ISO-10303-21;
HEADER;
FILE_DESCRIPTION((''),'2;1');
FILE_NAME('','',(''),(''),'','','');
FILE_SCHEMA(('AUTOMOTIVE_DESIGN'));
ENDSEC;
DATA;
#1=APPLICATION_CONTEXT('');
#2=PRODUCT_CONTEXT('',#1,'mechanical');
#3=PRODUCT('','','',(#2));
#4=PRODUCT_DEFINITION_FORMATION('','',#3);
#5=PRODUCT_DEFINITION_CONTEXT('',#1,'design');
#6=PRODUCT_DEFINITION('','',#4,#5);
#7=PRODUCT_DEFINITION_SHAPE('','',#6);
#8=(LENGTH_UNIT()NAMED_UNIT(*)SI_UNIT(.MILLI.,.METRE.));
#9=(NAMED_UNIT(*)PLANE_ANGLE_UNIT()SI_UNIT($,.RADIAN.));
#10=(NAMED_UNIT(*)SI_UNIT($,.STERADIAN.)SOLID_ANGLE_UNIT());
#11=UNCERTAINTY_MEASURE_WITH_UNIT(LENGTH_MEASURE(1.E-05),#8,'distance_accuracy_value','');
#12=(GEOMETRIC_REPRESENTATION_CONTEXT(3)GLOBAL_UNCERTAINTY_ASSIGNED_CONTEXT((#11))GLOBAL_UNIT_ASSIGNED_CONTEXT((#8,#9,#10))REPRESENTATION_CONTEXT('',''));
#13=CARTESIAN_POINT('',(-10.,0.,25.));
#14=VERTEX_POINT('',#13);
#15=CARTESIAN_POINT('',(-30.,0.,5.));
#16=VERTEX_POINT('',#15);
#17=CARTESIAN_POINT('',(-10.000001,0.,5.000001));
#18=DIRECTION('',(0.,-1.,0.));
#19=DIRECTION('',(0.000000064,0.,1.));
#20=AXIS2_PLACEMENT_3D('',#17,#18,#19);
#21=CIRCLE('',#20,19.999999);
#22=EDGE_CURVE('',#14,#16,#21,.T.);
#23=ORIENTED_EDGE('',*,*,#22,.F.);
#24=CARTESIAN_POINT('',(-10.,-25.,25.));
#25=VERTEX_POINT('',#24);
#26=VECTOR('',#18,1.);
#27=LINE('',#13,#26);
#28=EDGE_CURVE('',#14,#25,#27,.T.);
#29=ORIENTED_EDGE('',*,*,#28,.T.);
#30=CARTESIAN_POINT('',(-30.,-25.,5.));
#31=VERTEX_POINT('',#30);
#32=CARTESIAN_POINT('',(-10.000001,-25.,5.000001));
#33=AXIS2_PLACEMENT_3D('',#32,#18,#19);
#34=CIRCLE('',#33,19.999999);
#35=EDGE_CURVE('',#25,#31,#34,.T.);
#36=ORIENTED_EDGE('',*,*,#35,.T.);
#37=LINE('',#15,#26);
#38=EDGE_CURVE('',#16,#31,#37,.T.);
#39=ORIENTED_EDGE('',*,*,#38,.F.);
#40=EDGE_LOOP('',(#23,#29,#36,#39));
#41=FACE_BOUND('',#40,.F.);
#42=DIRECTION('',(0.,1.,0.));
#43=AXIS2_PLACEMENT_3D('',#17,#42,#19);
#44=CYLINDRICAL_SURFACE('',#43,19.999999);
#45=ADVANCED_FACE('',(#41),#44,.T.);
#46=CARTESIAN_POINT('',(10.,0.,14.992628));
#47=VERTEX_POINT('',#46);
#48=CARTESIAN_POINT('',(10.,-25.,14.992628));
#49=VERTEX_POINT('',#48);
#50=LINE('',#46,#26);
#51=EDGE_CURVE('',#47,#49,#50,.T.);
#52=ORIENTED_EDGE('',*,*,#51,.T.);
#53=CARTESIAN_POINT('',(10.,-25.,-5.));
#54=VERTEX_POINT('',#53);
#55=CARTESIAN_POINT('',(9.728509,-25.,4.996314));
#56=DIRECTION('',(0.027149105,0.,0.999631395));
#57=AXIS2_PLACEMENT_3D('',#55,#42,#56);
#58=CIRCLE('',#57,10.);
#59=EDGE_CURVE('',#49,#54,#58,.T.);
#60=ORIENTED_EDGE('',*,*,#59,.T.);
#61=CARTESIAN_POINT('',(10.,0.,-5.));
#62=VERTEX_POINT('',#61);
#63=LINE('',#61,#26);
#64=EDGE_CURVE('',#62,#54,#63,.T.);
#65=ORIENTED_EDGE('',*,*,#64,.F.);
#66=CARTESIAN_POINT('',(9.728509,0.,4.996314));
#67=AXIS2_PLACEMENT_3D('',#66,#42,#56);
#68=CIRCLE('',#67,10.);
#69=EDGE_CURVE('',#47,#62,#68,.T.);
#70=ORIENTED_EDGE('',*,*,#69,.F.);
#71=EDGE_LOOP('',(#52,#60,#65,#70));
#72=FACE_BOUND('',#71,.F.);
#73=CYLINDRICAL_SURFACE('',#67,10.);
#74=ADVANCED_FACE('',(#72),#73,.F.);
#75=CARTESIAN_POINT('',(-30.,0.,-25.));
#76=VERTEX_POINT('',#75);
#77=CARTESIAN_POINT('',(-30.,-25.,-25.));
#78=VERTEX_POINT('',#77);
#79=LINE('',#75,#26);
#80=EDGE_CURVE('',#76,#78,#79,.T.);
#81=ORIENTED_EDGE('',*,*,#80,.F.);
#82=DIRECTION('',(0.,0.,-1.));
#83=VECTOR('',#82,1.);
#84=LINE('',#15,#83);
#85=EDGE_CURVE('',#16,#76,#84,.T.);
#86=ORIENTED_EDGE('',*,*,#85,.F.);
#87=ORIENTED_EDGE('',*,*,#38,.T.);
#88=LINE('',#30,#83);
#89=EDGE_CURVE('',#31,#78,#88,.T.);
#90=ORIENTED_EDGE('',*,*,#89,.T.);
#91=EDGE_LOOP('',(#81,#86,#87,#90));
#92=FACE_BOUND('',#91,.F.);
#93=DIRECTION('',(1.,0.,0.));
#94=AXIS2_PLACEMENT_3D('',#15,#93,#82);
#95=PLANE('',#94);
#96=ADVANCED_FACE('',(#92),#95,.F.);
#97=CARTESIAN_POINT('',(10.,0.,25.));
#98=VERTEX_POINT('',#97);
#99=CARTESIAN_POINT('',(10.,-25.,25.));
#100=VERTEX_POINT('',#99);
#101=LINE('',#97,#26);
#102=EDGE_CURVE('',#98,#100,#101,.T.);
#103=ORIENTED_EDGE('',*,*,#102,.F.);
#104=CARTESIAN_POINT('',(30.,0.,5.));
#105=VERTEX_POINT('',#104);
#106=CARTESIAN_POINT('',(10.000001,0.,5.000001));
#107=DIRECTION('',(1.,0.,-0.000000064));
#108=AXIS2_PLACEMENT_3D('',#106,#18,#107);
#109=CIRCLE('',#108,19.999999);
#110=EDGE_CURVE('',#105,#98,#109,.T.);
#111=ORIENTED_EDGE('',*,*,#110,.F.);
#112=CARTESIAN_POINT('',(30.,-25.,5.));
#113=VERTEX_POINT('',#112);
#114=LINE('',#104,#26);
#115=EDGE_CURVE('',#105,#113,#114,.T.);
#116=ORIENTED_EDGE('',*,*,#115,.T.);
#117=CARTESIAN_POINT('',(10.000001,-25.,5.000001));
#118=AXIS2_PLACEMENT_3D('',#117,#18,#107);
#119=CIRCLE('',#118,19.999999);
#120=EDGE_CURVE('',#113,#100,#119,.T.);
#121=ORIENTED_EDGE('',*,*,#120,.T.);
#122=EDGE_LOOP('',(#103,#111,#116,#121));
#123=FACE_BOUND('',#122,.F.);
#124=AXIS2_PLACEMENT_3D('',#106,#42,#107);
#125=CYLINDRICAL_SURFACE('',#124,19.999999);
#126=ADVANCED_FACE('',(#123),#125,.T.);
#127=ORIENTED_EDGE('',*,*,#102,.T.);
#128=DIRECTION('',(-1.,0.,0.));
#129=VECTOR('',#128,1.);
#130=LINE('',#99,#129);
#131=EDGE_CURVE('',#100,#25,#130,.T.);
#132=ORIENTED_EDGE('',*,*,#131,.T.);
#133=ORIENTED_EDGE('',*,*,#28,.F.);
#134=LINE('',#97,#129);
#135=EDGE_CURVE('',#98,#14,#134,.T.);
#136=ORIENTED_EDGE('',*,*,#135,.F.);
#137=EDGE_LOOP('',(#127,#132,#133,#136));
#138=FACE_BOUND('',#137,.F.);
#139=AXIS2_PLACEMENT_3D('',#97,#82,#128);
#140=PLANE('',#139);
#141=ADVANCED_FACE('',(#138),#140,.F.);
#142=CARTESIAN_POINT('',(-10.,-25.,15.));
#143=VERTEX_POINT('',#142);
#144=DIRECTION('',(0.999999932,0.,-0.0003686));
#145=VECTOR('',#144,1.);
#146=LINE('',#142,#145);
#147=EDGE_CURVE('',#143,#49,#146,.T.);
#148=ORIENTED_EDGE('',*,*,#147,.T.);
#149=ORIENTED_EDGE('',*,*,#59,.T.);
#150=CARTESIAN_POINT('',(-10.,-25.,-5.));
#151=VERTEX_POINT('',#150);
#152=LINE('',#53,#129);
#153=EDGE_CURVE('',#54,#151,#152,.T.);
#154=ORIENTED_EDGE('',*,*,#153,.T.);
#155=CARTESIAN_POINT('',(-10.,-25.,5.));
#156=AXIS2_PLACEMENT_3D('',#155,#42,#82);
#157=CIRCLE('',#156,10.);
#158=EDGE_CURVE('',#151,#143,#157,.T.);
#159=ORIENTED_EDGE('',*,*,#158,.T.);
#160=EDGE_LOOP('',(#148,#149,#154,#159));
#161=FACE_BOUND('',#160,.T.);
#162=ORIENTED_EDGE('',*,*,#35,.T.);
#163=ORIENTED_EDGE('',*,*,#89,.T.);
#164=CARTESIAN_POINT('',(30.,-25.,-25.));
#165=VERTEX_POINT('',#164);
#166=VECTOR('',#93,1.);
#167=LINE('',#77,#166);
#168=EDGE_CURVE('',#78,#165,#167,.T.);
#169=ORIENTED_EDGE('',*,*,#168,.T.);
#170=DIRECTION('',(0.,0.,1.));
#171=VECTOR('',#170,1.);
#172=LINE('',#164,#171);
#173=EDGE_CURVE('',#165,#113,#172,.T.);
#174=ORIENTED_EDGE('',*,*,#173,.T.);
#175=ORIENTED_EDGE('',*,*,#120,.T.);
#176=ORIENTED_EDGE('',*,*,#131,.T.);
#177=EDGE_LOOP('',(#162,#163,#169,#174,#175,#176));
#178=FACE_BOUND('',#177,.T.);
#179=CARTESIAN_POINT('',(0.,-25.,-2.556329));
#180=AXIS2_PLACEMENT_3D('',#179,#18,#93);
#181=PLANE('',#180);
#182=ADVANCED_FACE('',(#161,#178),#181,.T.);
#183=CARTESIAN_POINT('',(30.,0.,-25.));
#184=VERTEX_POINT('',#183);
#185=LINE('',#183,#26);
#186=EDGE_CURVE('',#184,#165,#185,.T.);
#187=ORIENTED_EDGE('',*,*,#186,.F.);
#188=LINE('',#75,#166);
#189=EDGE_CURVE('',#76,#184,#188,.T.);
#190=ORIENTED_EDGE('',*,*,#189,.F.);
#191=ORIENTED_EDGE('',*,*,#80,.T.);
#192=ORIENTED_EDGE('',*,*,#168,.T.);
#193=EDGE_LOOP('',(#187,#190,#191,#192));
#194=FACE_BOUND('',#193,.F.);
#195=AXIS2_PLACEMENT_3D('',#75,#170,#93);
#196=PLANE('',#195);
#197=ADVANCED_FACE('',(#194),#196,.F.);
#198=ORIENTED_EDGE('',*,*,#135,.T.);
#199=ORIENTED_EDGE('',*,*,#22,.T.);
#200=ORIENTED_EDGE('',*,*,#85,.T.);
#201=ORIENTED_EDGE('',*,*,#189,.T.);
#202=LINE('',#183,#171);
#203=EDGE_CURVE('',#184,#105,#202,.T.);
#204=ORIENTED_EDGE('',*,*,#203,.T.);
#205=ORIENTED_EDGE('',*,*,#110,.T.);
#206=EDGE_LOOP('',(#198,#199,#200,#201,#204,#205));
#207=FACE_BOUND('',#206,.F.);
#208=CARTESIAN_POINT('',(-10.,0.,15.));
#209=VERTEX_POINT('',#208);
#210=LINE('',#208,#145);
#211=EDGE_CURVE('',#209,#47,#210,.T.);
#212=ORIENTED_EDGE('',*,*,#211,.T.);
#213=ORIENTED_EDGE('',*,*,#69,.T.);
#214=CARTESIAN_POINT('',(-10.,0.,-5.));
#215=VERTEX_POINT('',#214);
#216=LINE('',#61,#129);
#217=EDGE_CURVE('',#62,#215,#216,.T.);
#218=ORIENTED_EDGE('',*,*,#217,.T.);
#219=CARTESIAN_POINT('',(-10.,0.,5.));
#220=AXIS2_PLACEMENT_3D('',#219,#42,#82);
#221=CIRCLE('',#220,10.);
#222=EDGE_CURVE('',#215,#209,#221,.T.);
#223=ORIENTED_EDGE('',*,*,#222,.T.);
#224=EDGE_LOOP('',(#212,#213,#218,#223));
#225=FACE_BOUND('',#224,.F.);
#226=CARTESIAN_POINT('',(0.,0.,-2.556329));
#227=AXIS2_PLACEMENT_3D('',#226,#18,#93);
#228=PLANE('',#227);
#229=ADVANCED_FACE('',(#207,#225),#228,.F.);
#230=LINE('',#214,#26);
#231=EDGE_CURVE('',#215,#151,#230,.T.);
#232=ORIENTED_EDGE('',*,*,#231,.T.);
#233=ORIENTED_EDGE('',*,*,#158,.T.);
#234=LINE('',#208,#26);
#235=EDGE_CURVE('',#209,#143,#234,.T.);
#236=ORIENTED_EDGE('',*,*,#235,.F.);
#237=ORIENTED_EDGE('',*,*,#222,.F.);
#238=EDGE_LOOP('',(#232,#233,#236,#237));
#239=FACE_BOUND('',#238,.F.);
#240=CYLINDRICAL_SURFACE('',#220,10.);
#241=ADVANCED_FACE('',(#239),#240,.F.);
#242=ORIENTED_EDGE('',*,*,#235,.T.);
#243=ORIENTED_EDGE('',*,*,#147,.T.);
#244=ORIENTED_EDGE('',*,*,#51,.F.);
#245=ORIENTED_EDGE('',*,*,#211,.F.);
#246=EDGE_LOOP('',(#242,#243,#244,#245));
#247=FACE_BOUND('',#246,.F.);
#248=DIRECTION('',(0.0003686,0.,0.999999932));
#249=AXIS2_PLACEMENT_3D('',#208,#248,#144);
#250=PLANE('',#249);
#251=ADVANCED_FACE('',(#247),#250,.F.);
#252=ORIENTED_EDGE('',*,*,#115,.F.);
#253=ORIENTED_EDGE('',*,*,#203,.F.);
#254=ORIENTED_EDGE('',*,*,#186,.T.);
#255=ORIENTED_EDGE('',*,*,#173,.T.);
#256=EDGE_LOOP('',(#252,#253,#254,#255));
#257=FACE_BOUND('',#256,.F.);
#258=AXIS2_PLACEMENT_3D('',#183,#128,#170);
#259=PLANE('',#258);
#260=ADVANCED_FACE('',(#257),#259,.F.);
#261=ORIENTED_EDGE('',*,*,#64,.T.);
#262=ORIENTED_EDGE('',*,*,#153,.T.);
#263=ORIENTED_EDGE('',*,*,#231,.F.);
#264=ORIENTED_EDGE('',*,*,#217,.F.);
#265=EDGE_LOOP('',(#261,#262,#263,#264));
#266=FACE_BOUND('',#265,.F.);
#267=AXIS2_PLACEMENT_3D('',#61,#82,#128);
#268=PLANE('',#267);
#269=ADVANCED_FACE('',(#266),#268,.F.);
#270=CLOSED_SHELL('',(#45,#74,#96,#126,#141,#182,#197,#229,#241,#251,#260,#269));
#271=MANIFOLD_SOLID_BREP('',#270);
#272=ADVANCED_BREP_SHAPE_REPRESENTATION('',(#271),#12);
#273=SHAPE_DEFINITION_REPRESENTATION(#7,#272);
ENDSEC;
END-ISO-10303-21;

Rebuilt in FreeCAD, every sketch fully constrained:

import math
import FreeCAD as App
import Part
import Sketcher
from FreeCAD import Vector
Q = App.Units.Quantity

doc = App.newDocument("Part")
body = doc.addObject("PartDesign::Body", "Body")

sketch1 = doc.addObject("Sketcher::SketchObject", "Sketch")
body.addObject(sketch1)
sketch1.AttachmentSupport = (doc.XZ_Plane, [""])
sketch1.MapMode = "FlatFace"
sketch1.addGeometry([
    Part.LineSegment(Vector(10, 25, 0), Vector(-10, 25, 0)),
    Part.ArcOfCircle(Part.Circle(Vector(-10, 5, 0), Vector(0, 0, 1), 20), math.radians(90), math.radians(180)),
    Part.LineSegment(Vector(-30, 5, 0), Vector(-30, -25, 0)),
    Part.LineSegment(Vector(-30, -25, 0), Vector(30, -25, 0)),
    Part.LineSegment(Vector(30, -25, 0), Vector(30, 5, 0)),
    Part.ArcOfCircle(Part.Circle(Vector(10, 5, 0), Vector(0, 0, 1), 20), math.radians(0), math.radians(90)),
    Part.LineSegment(Vector(10, -5, 0), Vector(-10, -5, 0)),
    Part.ArcOfCircle(Part.Circle(Vector(-10, 5, 0), Vector(0, 0, 1), 10), math.radians(90), math.radians(270)),
    Part.LineSegment(Vector(-10, 15, 0), Vector(10, 15, 0)),
    Part.ArcOfCircle(Part.Circle(Vector(10, 5, 0), Vector(0, 0, 1), 10), math.radians(-88), math.radians(88)),
], False)
sketch1.addConstraint([
    Sketcher.Constraint("Tangent", 0, 2, 1, 1),
    Sketcher.Constraint("Tangent", 1, 2, 2, 1),
    Sketcher.Constraint("Coincident", 2, 2, 3, 1),
    Sketcher.Constraint("Coincident", 3, 2, 4, 1),
    Sketcher.Constraint("Tangent", 4, 2, 5, 1),
    Sketcher.Constraint("Tangent", 5, 2, 0, 1),
    Sketcher.Constraint("Tangent", 6, 2, 7, 2),
    Sketcher.Constraint("Coincident", 7, 1, 8, 1),
    Sketcher.Constraint("Coincident", 8, 2, 9, 2),
    Sketcher.Constraint("Coincident", 9, 1, 6, 1),
    Sketcher.Constraint("Horizontal", 0),
    Sketcher.Constraint("Vertical", 2),
    Sketcher.Constraint("Horizontal", 3),
    Sketcher.Constraint("Vertical", 4),
    Sketcher.Constraint("Horizontal", 6),
    Sketcher.Constraint("Coincident", 7, 3, 1, 3),
    Sketcher.Constraint("Equal", 1, 5),
    Sketcher.Constraint("Equal", 7, 9),
    Sketcher.Constraint("Vertical", 6, 2, 7, 1),
    Sketcher.Constraint("Vertical", 5, 2, 8, 2),
    Sketcher.Constraint("Vertical", 8, 2, 9, 1),
    Sketcher.Constraint("Radius", 1, Q("19.999999 mm")),
    Sketcher.Constraint("Radius", 7, Q("10 mm")),
    Sketcher.Constraint("DistanceX", 0, 2, 0, 1, Q("20 mm")),
    Sketcher.Constraint("DistanceY", 2, 2, 2, 1, Q("30 mm")),
    Sketcher.Constraint("DistanceX", 1, 3, -1, 1, Q("10.000001 mm")),
    Sketcher.Constraint("DistanceY", -1, 1, 1, 3, Q("5.000001 mm")),
    Sketcher.Constraint("DistanceX", -1, 1, 9, 3, Q("9.728509 mm")),
])
pad1 = doc.addObject("PartDesign::Pad", "Pad")
body.addObject(pad1)
pad1.Profile = sketch1
pad1.Length = 25

doc.recompute()
